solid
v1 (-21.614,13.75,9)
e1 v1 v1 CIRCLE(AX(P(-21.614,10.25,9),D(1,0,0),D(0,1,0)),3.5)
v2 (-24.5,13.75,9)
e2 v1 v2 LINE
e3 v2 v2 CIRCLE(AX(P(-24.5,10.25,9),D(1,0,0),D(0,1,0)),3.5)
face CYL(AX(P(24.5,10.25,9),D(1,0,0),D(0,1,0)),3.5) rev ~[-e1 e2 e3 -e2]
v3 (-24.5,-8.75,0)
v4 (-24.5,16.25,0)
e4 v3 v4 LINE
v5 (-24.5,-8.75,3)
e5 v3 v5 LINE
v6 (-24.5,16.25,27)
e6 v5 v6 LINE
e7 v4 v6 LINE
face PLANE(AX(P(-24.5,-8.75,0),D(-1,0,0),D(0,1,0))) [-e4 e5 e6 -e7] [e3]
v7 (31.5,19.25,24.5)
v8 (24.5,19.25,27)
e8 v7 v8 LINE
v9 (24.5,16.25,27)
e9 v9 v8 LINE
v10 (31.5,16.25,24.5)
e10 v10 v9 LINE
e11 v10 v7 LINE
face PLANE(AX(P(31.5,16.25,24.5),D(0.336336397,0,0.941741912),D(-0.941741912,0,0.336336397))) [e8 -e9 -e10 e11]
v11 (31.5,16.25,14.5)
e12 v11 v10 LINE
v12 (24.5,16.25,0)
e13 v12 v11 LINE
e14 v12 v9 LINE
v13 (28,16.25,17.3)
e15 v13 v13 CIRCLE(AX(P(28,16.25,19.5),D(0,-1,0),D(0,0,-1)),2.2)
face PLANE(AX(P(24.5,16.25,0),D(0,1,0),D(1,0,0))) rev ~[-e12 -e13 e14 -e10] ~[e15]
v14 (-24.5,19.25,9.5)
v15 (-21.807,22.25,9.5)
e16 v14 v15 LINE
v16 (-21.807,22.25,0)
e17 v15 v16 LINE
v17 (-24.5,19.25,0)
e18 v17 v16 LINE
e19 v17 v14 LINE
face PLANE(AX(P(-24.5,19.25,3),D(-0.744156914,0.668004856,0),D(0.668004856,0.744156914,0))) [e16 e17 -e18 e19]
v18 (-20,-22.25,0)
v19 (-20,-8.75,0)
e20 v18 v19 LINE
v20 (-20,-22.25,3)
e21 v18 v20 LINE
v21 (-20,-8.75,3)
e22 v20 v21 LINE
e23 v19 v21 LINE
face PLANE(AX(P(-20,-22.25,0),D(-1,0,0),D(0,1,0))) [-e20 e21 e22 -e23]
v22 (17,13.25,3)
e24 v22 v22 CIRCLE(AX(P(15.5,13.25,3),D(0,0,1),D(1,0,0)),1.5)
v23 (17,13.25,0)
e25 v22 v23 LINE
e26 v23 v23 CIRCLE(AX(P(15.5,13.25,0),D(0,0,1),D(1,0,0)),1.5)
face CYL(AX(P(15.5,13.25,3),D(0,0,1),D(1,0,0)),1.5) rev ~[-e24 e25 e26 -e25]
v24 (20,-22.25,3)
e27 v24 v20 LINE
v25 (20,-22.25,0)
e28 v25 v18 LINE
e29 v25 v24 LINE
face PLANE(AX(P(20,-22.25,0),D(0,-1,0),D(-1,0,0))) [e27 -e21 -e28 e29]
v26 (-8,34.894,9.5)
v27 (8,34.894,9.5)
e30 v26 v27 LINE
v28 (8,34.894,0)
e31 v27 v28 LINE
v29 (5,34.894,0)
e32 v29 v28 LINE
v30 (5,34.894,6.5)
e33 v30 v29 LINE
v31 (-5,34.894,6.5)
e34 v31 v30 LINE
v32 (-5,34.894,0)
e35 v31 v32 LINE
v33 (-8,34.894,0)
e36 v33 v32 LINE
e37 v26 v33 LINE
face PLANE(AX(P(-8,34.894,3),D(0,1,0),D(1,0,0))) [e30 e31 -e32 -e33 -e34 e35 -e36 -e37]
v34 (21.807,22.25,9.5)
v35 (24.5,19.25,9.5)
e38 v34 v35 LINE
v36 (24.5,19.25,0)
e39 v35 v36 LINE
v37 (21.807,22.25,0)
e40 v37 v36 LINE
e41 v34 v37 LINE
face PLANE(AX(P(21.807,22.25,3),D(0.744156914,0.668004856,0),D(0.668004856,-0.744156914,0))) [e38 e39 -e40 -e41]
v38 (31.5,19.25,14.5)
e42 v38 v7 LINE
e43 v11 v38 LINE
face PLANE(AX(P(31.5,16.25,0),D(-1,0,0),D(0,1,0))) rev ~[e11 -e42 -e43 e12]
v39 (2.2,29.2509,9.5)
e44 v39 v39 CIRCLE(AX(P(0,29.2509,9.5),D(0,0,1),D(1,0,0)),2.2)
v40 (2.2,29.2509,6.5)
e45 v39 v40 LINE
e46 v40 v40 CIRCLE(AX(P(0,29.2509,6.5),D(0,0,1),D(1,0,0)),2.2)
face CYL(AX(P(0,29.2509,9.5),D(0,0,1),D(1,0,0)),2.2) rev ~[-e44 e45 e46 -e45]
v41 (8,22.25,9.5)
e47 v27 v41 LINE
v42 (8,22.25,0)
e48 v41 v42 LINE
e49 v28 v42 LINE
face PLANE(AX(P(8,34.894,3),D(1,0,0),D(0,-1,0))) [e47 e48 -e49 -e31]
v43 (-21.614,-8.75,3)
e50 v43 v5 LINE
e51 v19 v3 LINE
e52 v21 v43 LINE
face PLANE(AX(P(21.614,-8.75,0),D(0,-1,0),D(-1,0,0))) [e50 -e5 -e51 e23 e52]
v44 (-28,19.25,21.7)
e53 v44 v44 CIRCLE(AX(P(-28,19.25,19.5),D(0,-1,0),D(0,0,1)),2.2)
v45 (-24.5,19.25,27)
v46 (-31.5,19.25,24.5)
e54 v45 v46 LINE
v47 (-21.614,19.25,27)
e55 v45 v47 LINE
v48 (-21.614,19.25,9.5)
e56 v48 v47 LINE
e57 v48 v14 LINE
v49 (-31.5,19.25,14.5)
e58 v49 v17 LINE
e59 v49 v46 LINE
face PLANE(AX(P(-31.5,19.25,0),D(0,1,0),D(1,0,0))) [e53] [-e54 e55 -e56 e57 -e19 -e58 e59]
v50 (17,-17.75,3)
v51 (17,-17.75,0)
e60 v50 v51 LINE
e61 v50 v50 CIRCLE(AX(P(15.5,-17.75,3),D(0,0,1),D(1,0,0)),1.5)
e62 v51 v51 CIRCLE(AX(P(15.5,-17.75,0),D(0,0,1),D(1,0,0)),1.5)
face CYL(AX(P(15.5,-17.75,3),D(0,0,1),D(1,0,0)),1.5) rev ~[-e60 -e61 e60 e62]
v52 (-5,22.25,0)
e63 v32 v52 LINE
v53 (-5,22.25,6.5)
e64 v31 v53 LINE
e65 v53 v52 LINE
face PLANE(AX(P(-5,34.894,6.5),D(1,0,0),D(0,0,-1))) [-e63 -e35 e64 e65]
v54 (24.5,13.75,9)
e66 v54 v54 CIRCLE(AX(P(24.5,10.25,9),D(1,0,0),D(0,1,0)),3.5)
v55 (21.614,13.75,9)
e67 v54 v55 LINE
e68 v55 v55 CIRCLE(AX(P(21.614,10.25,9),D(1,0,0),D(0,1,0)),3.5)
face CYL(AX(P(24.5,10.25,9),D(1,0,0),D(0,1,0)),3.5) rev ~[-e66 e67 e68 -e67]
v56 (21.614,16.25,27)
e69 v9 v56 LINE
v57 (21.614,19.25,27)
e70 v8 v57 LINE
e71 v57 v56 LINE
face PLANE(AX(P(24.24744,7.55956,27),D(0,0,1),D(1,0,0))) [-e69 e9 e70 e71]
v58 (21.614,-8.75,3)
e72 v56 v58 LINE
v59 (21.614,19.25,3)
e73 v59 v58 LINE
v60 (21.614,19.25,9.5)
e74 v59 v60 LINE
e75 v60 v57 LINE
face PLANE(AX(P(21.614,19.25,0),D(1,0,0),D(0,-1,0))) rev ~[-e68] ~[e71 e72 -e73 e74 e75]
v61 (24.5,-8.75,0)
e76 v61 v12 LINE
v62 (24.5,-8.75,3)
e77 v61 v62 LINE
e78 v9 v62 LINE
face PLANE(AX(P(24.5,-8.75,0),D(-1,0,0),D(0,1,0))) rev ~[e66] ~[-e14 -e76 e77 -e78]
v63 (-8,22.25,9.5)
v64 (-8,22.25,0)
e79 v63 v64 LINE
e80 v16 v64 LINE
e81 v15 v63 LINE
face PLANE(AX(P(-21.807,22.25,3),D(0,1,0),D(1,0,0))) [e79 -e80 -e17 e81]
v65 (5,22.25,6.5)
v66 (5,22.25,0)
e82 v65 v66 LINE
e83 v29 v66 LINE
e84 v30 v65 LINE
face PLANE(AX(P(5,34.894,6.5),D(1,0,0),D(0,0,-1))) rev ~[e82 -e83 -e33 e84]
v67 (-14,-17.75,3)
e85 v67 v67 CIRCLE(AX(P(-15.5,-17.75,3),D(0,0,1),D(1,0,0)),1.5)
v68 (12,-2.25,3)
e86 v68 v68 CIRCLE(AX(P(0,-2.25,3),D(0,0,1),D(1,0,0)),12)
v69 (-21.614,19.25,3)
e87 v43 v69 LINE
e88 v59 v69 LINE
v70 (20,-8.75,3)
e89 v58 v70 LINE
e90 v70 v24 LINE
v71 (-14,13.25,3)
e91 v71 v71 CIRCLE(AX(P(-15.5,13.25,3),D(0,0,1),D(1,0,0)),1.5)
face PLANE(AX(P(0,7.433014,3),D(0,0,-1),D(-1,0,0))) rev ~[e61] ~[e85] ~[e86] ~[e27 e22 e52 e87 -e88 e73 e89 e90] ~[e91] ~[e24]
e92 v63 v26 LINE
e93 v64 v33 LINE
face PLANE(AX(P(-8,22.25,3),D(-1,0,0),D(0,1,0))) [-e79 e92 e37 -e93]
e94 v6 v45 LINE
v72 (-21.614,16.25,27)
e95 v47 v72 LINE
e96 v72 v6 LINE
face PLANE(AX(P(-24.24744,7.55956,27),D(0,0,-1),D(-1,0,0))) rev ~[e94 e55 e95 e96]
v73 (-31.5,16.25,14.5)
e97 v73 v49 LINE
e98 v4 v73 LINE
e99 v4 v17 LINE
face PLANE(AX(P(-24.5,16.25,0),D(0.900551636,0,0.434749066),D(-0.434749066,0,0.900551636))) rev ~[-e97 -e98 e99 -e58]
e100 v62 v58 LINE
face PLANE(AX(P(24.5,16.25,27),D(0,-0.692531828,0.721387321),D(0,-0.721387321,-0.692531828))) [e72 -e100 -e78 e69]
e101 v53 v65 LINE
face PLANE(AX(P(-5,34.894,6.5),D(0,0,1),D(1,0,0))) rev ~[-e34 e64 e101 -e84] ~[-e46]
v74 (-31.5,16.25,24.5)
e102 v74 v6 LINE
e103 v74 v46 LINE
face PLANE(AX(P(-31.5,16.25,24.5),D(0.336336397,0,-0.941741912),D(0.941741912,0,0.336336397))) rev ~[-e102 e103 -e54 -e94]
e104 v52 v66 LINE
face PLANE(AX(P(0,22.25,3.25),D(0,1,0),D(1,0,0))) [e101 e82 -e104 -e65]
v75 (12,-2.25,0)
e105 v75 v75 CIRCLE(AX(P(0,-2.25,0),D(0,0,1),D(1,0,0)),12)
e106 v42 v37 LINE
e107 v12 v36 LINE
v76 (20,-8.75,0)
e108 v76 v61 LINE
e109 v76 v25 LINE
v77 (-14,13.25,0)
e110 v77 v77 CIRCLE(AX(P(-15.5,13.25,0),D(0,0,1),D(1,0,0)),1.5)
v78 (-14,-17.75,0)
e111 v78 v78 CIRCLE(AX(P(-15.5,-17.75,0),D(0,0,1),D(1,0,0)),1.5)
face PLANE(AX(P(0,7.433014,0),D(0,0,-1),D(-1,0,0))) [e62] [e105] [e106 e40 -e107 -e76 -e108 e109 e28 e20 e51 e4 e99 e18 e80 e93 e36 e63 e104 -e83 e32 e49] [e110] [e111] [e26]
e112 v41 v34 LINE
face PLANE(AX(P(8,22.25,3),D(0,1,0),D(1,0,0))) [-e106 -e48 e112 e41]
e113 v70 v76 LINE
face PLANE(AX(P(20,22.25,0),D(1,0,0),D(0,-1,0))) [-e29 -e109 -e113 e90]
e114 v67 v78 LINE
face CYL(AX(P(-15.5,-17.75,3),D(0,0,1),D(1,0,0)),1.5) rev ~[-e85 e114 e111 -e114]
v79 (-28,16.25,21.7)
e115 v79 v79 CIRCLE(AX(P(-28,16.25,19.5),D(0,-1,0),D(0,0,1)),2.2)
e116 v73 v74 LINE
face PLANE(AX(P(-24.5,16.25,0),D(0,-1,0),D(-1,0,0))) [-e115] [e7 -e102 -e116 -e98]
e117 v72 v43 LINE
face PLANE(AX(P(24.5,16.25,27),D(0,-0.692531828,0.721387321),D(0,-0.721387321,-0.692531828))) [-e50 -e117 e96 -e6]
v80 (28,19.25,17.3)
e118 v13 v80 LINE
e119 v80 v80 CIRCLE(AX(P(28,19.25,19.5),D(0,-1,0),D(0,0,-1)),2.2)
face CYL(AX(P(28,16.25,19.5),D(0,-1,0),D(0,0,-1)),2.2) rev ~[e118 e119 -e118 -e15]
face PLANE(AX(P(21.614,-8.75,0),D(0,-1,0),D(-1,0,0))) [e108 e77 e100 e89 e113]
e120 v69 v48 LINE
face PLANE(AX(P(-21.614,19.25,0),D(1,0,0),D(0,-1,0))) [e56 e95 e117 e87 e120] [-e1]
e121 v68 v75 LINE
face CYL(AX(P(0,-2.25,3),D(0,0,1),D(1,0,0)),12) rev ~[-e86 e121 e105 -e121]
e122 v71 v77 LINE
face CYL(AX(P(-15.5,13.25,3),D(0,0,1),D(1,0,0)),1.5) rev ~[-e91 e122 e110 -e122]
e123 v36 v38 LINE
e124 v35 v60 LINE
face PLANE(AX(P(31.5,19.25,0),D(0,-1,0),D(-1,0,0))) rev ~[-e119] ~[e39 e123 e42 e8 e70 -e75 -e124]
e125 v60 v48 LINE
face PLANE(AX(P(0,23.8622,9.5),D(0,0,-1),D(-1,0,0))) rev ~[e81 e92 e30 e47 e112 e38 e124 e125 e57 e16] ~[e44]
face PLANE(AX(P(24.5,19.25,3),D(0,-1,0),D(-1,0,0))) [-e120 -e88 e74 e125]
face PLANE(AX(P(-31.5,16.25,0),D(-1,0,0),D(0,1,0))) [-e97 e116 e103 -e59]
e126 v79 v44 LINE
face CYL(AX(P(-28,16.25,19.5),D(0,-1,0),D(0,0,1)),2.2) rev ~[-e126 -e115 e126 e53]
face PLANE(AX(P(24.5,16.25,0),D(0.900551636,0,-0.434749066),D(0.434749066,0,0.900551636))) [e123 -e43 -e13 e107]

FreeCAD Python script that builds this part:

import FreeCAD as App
import Part
import Sketcher

V = App.Vector
Q = App.Units.Quantity

doc = App.newDocument("Part")
params = doc.addObject("Spreadsheet::Sheet", "Params")
for row, (alias, value) in enumerate([
    ("sketch1_width", "12 mm"),
    ("sketch1_width2", "40 mm"),
    ("sketch1_height", "44.5 mm"),
    ("pad1_length", "3 mm"),
    ("sketch2_width", "7 mm"),
    ("sketch2_height", "28 mm"),
    ("sketch2_height2", "25 mm"),
    ("pad2_length", "27 mm"),
    ("sketch3_width", "7 mm"),
    ("sketch3_height", "3 mm"),
    ("sketch3_height2", "25 mm"),
    ("pad3_length", "27 mm"),
    ("sketch4_height", "28 mm"),
    ("pad4_length", "3 mm"),
    ("sketch5_width", "49 mm"),
    ("sketch5_width2", "16 mm"),
    ("pad5_length", "6.5 mm"),
    ("sketch6_diameter", "7 mm"),
    ("sketch6_width", "25 mm"),
    ("sketch6_height", "24 mm"),
    ("sketch7_diameter", "4.4 mm"),
    ("sketch7_width", "7 mm"),
    ("sketch7_height", "2.5 mm"),
    ("sketch7_height2", "14.5 mm"),
    ("sketch8_width", "10 mm"),
    ("sketch8_height", "6.5 mm"),
    ("pocket3_length", "12.644 mm"),
    ("sketch9_diameter", "24 mm"),
    ("sketch9_diameter2", "3 mm"),
    ("sketch10_diameter", "4.4 mm"),
], start=1):
    params.set(f"A{row}", alias)
    params.set(f"B{row}", "=" + value)
    params.setAlias(f"B{row}", alias)

body = doc.addObject("PartDesign::Body", "Body")

# Sketch on XY plane
sketch1 = doc.addObject("Sketcher::SketchObject", "Sketch")
body.addObject(sketch1)
sketch1.AttachmentSupport = (doc.XY_Plane, [""])
sketch1.MapMode = "FlatFace"
sketch1.addGeometry(Part.LineSegment(V(-8, 35, 0), V(-8, 22, 0)), False)
sketch1.addGeometry(Part.LineSegment(V(-8, 22, 0), V(-20, 22, 0)), False)
sketch1.addGeometry(Part.LineSegment(V(-20, 22, 0), V(-20, -22, 0)), False)
sketch1.addGeometry(Part.LineSegment(V(-20, -22, 0), V(20, -22, 0)), False)
sketch1.addGeometry(Part.LineSegment(V(20, -22, 0), V(20, 22, 0)), False)
sketch1.addGeometry(Part.LineSegment(V(20, 22, 0), V(8, 22, 0)), False)
sketch1.addGeometry(Part.LineSegment(V(8, 22, 0), V(8, 35, 0)), False)
sketch1.addGeometry(Part.LineSegment(V(8, 35, 0), V(-8, 35, 0)), False)
sketch1.addConstraint(Sketcher.Constraint("Coincident", 0, 2, 1, 1))
sketch1.addConstraint(Sketcher.Constraint("Coincident", 1, 2, 2, 1))
sketch1.addConstraint(Sketcher.Constraint("Coincident", 2, 2, 3, 1))
sketch1.addConstraint(Sketcher.Constraint("Coincident", 3, 2, 4, 1))
sketch1.addConstraint(Sketcher.Constraint("Coincident", 4, 2, 5, 1))
sketch1.addConstraint(Sketcher.Constraint("Coincident", 5, 2, 6, 1))
sketch1.addConstraint(Sketcher.Constraint("Coincident", 6, 2, 7, 1))
sketch1.addConstraint(Sketcher.Constraint("Coincident", 7, 2, 0, 1))
sketch1.addConstraint(Sketcher.Constraint("Vertical", 0))
sketch1.addConstraint(Sketcher.Constraint("Horizontal", 1))
sketch1.addConstraint(Sketcher.Constraint("Vertical", 2))
sketch1.addConstraint(Sketcher.Constraint("Horizontal", 3))
sketch1.addConstraint(Sketcher.Constraint("Vertical", 4))
sketch1.addConstraint(Sketcher.Constraint("Horizontal", 5))
sketch1.addConstraint(Sketcher.Constraint("Vertical", 6))
sketch1.addConstraint(Sketcher.Constraint("Horizontal", 7))
sketch1.addConstraint(Sketcher.Constraint("Symmetric", 1, 2, 3, 2, -1, 1))
sketch1.addConstraint(Sketcher.Constraint("Symmetric", 0, 2, 5, 2, -2))
sketch1.addConstraint(Sketcher.Constraint("DistanceX", 1, 2, 1, 1, Q("12 mm")))
sketch1.addConstraint(Sketcher.Constraint("DistanceX", 3, 1, 3, 2, Q("40 mm")))
sketch1.addConstraint(Sketcher.Constraint("DistanceY", 2, 2, 2, 1, Q("44.5 mm")))
sketch1.addConstraint(Sketcher.Constraint("DistanceY", 0, 2, 0, 1, Q("12.644 mm")))
sketch1.setExpression("Constraints[18]", "Params.sketch1_width")
sketch1.setExpression("Constraints[19]", "Params.sketch1_width2")
sketch1.setExpression("Constraints[20]", "Params.sketch1_height")
pad1 = doc.addObject("PartDesign::Pad", "Pad")
body.addObject(pad1)
pad1.Profile = sketch1
pad1.setExpression("Length", "Params.pad1_length")
body2 = doc.addObject("PartDesign::Body", "Body001")

# Sketch on XY plane
sketch2 = doc.addObject("Sketcher::SketchObject", "Sketch001")
body2.addObject(sketch2)
sketch2.AttachmentSupport = (doc.getObject("XY_Plane001"), [""])
sketch2.MapMode = "FlatFace"
sketch2.addGeometry(Part.LineSegment(V(-31.5, 19.2, 0), V(-21.6, 19.2, 0)), False)
sketch2.addGeometry(Part.LineSegment(V(-21.6, 19.2, 0), V(-21.6, -8.8, 0)), False)
sketch2.addGeometry(Part.LineSegment(V(-21.6, -8.8, 0), V(-24.5, -8.8, 0)), False)
sketch2.addGeometry(Part.LineSegment(V(-24.5, -8.8, 0), V(-24.5, 16.2, 0)), False)
sketch2.addGeometry(Part.LineSegment(V(-24.5, 16.2, 0), V(-31.5, 16.2, 0)), False)
sketch2.addGeometry(Part.LineSegment(V(-31.5, 16.2, 0), V(-31.5, 19.2, 0)), False)
sketch2.addConstraint(Sketcher.Constraint("Coincident", 0, 2, 1, 1))
sketch2.addConstraint(Sketcher.Constraint("Coincident", 1, 2, 2, 1))
sketch2.addConstraint(Sketcher.Constraint("Coincident", 2, 2, 3, 1))
sketch2.addConstraint(Sketcher.Constraint("Coincident", 3, 2, 4, 1))
sketch2.addConstraint(Sketcher.Constraint("Coincident", 4, 2, 5, 1))
sketch2.addConstraint(Sketcher.Constraint("Coincident", 5, 2, 0, 1))
sketch2.addConstraint(Sketcher.Constraint("Horizontal", 0))
sketch2.addConstraint(Sketcher.Constraint("Vertical", 1))
sketch2.addConstraint(Sketcher.Constraint("Horizontal", 2))
sketch2.addConstraint(Sketcher.Constraint("Vertical", 3))
sketch2.addConstraint(Sketcher.Constraint("Horizontal", 4))
sketch2.addConstraint(Sketcher.Constraint("Vertical", 5))
sketch2.addConstraint(Sketcher.Constraint("DistanceX", 4, 2, 4, 1, Q("7 mm")))
sketch2.addConstraint(Sketcher.Constraint("DistanceY", 1, 2, 1, 1, Q("28 mm")))
sketch2.addConstraint(Sketcher.Constraint("DistanceY", 3, 1, 3, 2, Q("25 mm")))
sketch2.addConstraint(Sketcher.Constraint("DistanceX", 2, 2, -1, 1, Q("24.5 mm")))
sketch2.addConstraint(Sketcher.Constraint("DistanceX", 0, 1, 0, 2, Q("9.886 mm")))
sketch2.addConstraint(Sketcher.Constraint("DistanceY", -1, 1, 0, 2, Q("19.25 mm")))
sketch2.setExpression("Constraints[12]", "Params.sketch2_width")
sketch2.setExpression("Constraints[13]", "Params.sketch2_height")
sketch2.setExpression("Constraints[14]", "Params.sketch2_height2")
pad2 = doc.addObject("PartDesign::Pad", "Pad001")
body2.addObject(pad2)
pad2.Profile = sketch2
pad2.setExpression("Length", "Params.pad2_length")
body3 = doc.addObject("PartDesign::Body", "Body002")

# Sketch on XY plane
sketch3 = doc.addObject("Sketcher::SketchObject", "Sketch002")
body3.addObject(sketch3)
sketch3.AttachmentSupport = (doc.getObject("XY_Plane002"), [""])
sketch3.MapMode = "FlatFace"
sketch3.addGeometry(Part.LineSegment(V(31.5, 19.2, 0), V(31.5, 16.2, 0)), False)
sketch3.addGeometry(Part.LineSegment(V(31.5, 16.2, 0), V(24.5, 16.2, 0)), False)
sketch3.addGeometry(Part.LineSegment(V(24.5, 16.2, 0), V(24.5, -8.8, 0)), False)
sketch3.addGeometry(Part.LineSegment(V(24.5, -8.8, 0), V(21.6, -8.8, 0)), False)
sketch3.addGeometry(Part.LineSegment(V(21.6, -8.8, 0), V(21.6, 19.2, 0)), False)
sketch3.addGeometry(Part.LineSegment(V(21.6, 19.2, 0), V(31.5, 19.2, 0)), False)
sketch3.addConstraint(Sketcher.Constraint("Coincident", 0, 2, 1, 1))
sketch3.addConstraint(Sketcher.Constraint("Coincident", 1, 2, 2, 1))
sketch3.addConstraint(Sketcher.Constraint("Coincident", 2, 2, 3, 1))
sketch3.addConstraint(Sketcher.Constraint("Coincident", 3, 2, 4, 1))
sketch3.addConstraint(Sketcher.Constraint("Coincident", 4, 2, 5, 1))
sketch3.addConstraint(Sketcher.Constraint("Coincident", 5, 2, 0, 1))
sketch3.addConstraint(Sketcher.Constraint("Vertical", 0))
sketch3.addConstraint(Sketcher.Constraint("Horizontal", 1))
sketch3.addConstraint(Sketcher.Constraint("Vertical", 2))
sketch3.addConstraint(Sketcher.Constraint("Horizontal", 3))
sketch3.addConstraint(Sketcher.Constraint("Vertical", 4))
sketch3.addConstraint(Sketcher.Constraint("Horizontal", 5))
sketch3.addConstraint(Sketcher.Constraint("DistanceX", 1, 2, 1, 1, Q("7 mm")))
sketch3.addConstraint(Sketcher.Constraint("DistanceY", 0, 2, 0, 1, Q("3 mm")))
sketch3.addConstraint(Sketcher.Constraint("DistanceY", 2, 2, 2, 1, Q("25 mm")))
sketch3.addConstraint(Sketcher.Constraint("DistanceX", -1, 1, 0, 2, Q("31.5 mm")))
sketch3.addConstraint(Sketcher.Constraint("DistanceX", 3, 2, 3, 1, Q("2.886 mm")))
sketch3.addConstraint(Sketcher.Constraint("DistanceY", -1, 1, 0, 2, Q("16.25 mm")))
sketch3.setExpression("Constraints[12]", "Params.sketch3_width")
sketch3.setExpression("Constraints[13]", "Params.sketch3_height")
sketch3.setExpression("Constraints[14]", "Params.sketch3_height2")
pad3 = doc.addObject("PartDesign::Pad", "Pad002")
body3.addObject(pad3)
pad3.Profile = sketch3
pad3.setExpression("Length", "Params.pad3_length")
body.AllowCompound = True
doc.recompute()

boolean = doc.addObject("PartDesign::Boolean", "Boolean")
body.addObject(boolean)
boolean.Type = "Fuse"
boolean.addObjects([body2])
doc.recompute()

boolean2 = doc.addObject("PartDesign::Boolean", "Boolean001")
body.addObject(boolean2)
boolean2.Type = "Fuse"
boolean2.addObjects([body3])

# Sketch on XY plane
sketch4 = doc.addObject("Sketcher::SketchObject", "Sketch003")
body.addObject(sketch4)
sketch4.AttachmentSupport = (doc.XY_Plane, [""])
sketch4.MapMode = "FlatFace"
sketch4.addGeometry(Part.LineSegment(V(21.6, -8.8, 0), V(-21.6, -8.8, 0)), False)
sketch4.addGeometry(Part.LineSegment(V(-21.6, -8.8, 0), V(-21.6, 19.2, 0)), False)
sketch4.addGeometry(Part.LineSegment(V(-21.6, 19.2, 0), V(-24.5, 19.2, 0)), False)
sketch4.addGeometry(Part.LineSegment(V(-24.5, 19.2, 0), V(-21.8, 22.2, 0)), False)
sketch4.addGeometry(Part.LineSegment(V(-21.8, 22.2, 0), V(21.8, 22.2, 0)), False)
sketch4.addGeometry(Part.LineSegment(V(21.8, 22.2, 0), V(24.5, 19.2, 0)), False)
sketch4.addGeometry(Part.LineSegment(V(24.5, 19.2, 0), V(21.6, 19.2, 0)), False)
sketch4.addGeometry(Part.LineSegment(V(21.6, 19.2, 0), V(21.6, -8.8, 0)), False)
sketch4.addConstraint(Sketcher.Constraint("Coincident", 0, 2, 1, 1))
sketch4.addConstraint(Sketcher.Constraint("Coincident", 1, 2, 2, 1))
sketch4.addConstraint(Sketcher.Constraint("Coincident", 2, 2, 3, 1))
sketch4.addConstraint(Sketcher.Constraint("Coincident", 3, 2, 4, 1))
sketch4.addConstraint(Sketcher.Constraint("Coincident", 4, 2, 5, 1))
sketch4.addConstraint(Sketcher.Constraint("Coincident", 5, 2, 6, 1))
sketch4.addConstraint(Sketcher.Constraint("Coincident", 6, 2, 7, 1))
sketch4.addConstraint(Sketcher.Constraint("Coincident", 7, 2, 0, 1))
sketch4.addConstraint(Sketcher.Constraint("Horizontal", 0))
sketch4.addConstraint(Sketcher.Constraint("Vertical", 1))
sketch4.addConstraint(Sketcher.Constraint("Horizontal", 2))
sketch4.addConstraint(Sketcher.Constraint("Horizontal", 4))
sketch4.addConstraint(Sketcher.Constraint("Horizontal", 6))
sketch4.addConstraint(Sketcher.Constraint("Vertical", 7))
sketch4.addConstraint(Sketcher.Constraint("Symmetric", 2, 2, 5, 2, -2))
sketch4.addConstraint(Sketcher.Constraint("Equal", 2, 6))
sketch4.addConstraint(Sketcher.Constraint("Equal", 3, 5))
sketch4.addConstraint(Sketcher.Constraint("DistanceY", 1, 1, 1, 2, Q("28 mm")))
sketch4.addConstraint(Sketcher.Constraint("DistanceY", 1, 2, 3, 2, Q("3 mm")))
sketch4.addConstraint(Sketcher.Constraint("DistanceX", 2, 2, 5, 2, Q("49 mm")))
sketch4.addConstraint(Sketcher.Constraint("DistanceX", 0, 2, 0, 1, Q("43.228 mm")))
sketch4.addConstraint(Sketcher.Constraint("DistanceX", 4, 1, 4, 2, Q("43.614 mm")))
sketch4.addConstraint(Sketcher.Constraint("DistanceY", 0, 2, -1, 1, Q("8.75 mm")))
sketch4.setExpression("Constraints[17]", "Params.sketch4_height")
pad4 = doc.addObject("PartDesign::Pad", "Pad003")
body.addObject(pad4)
pad4.Profile = sketch4
pad4.setExpression("Length", "Params.pad4_length")

# Sketch on XY plane
sketch5 = doc.addObject("Sketcher::SketchObject", "Sketch004")
body.addObject(sketch5)
sketch5.AttachmentSupport = (doc.XY_Plane, [""])
sketch5.MapMode = "FlatFace"
sketch5.AttachmentOffset = App.Placement(V(0, 0, 3), App.Rotation())
sketch5.addGeometry(Part.LineSegment(V(-21.8, 22.2, 0), V(-24.5, 19.2, 0)), False)
sketch5.addGeometry(Part.LineSegment(V(-24.5, 19.2, 0), V(24.5, 19.2, 0)), False)
sketch5.addGeometry(Part.LineSegment(V(24.5, 19.2, 0), V(21.8, 22.2, 0)), False)
sketch5.addGeometry(Part.LineSegment(V(21.8, 22.2, 0), V(8, 22.2, 0)), False)
sketch5.addGeometry(Part.LineSegment(V(8, 22.2, 0), V(8, 34.9, 0)), False)
sketch5.addGeometry(Part.LineSegment(V(8, 34.9, 0), V(-8, 34.9, 0)), False)
sketch5.addGeometry(Part.LineSegment(V(-8, 34.9, 0), V(-8, 22.2, 0)), False)
sketch5.addGeometry(Part.LineSegment(V(-8, 22.2, 0), V(-21.8, 22.2, 0)), False)
sketch5.addConstraint(Sketcher.Constraint("Coincident", 0, 2, 1, 1))
sketch5.addConstraint(Sketcher.Constraint("Coincident", 1, 2, 2, 1))
sketch5.addConstraint(Sketcher.Constraint("Coincident", 2, 2, 3, 1))
sketch5.addConstraint(Sketcher.Constraint("Coincident", 3, 2, 4, 1))
sketch5.addConstraint(Sketcher.Constraint("Coincident", 4, 2, 5, 1))
sketch5.addConstraint(Sketcher.Constraint("Coincident", 5, 2, 6, 1))
sketch5.addConstraint(Sketcher.Constraint("Coincident", 6, 2, 7, 1))
sketch5.addConstraint(Sketcher.Constraint("Coincident", 7, 2, 0, 1))
sketch5.addConstraint(Sketcher.Constraint("Horizontal", 1))
sketch5.addConstraint(Sketcher.Constraint("Horizontal", 3))
sketch5.addConstraint(Sketcher.Constraint("Vertical", 4))
sketch5.addConstraint(Sketcher.Constraint("Horizontal", 5))
sketch5.addConstraint(Sketcher.Constraint("Vertical", 6))
sketch5.addConstraint(Sketcher.Constraint("Horizontal", 7))
sketch5.addConstraint(Sketcher.Constraint("Symmetric", 3, 2, 6, 2, -2))
sketch5.addConstraint(Sketcher.Constraint("Equal", 3, 7))
sketch5.addConstraint(Sketcher.Constraint("Equal", 0, 2))
sketch5.addConstraint(Sketcher.Constraint("DistanceX", 1, 1, 1, 2, Q("49 mm")))
sketch5.addConstraint(Sketcher.Constraint("DistanceX", 5, 2, 5, 1, Q("16 mm")))
sketch5.addConstraint(Sketcher.Constraint("DistanceY", 1, 2, 2, 2, Q("3 mm")))
sketch5.addConstraint(Sketcher.Constraint("DistanceX", 3, 2, 3, 1, Q("13.807 mm")))
sketch5.addConstraint(Sketcher.Constraint("DistanceY", 4, 1, 4, 2, Q("12.644 mm")))
sketch5.addConstraint(Sketcher.Constraint("DistanceY", -1, 1, 0, 2, Q("19.25 mm")))
sketch5.setExpression("Constraints[17]", "Params.sketch5_width")
sketch5.setExpression("Constraints[18]", "Params.sketch5_width2")
pad5 = doc.addObject("PartDesign::Pad", "Pad004")
body.addObject(pad5)
pad5.Profile = sketch5
pad5.setExpression("Length", "Params.pad5_length")

# Sketch on YZ plane
sketch6 = doc.addObject("Sketcher::SketchObject", "Sketch005")
body.addObject(sketch6)
sketch6.AttachmentSupport = (doc.YZ_Plane, [""])
sketch6.MapMode = "FlatFace"
sketch6.AttachmentOffset = App.Placement(V(0, 0, 24.5), App.Rotation())
sketch6.addGeometry(Part.Circle(V(10.2, 9, 0), V(0, 0, 1), 3.5), False)
sketch6.addGeometry(Part.LineSegment(V(-8.8, 3, 0), V(16.2, 27, 0)), False)
sketch6.addGeometry(Part.LineSegment(V(16.2, 27, 0), V(-8.8, 27, 0)), False)
sketch6.addGeometry(Part.LineSegment(V(-8.8, 27, 0), V(-8.8, 3, 0)), False)
sketch6.addConstraint(Sketcher.Constraint("Coincident", 1, 2, 2, 1))
sketch6.addConstraint(Sketcher.Constraint("Coincident", 2, 2, 3, 1))
sketch6.addConstraint(Sketcher.Constraint("Coincident", 3, 2, 1, 1))
sketch6.addConstraint(Sketcher.Constraint("Horizontal", 2))
sketch6.addConstraint(Sketcher.Constraint("Vertical", 3))
sketch6.addConstraint(Sketcher.Constraint("Diameter", 0, Q("7 mm")))
sketch6.addConstraint(Sketcher.Constraint("DistanceX", 2, 2, 2, 1, Q("25 mm")))
sketch6.addConstraint(Sketcher.Constraint("DistanceY", 3, 2, 3, 1, Q("24 mm")))
sketch6.addConstraint(Sketcher.Constraint("DistanceY", -1, 1, 0, 3, Q("9 mm")))
sketch6.addConstraint(Sketcher.Constraint("DistanceY", -1, 1, 1, 2, Q("27 mm")))
sketch6.addConstraint(Sketcher.Constraint("DistanceX", 0, 3, 1, 2, Q("6 mm")))
sketch6.addConstraint(Sketcher.Constraint("DistanceX", -1, 1, 0, 3, Q("10.25 mm")))
sketch6.setExpression("Constraints[5]", "Params.sketch6_diameter")
sketch6.setExpression("Constraints[6]", "Params.sketch6_width")
sketch6.setExpression("Constraints[7]", "Params.sketch6_height")
pocket1 = doc.addObject("PartDesign::Pocket", "Pocket")
body.addObject(pocket1)
pocket1.Profile = sketch6
pocket1.Type = "ThroughAll"

# Sketch on XZ plane
sketch7 = doc.addObject("Sketcher::SketchObject", "Sketch006")
body.addObject(sketch7)
sketch7.AttachmentSupport = (doc.XZ_Plane, [""])
sketch7.MapMode = "FlatFace"
sketch7.AttachmentOffset = App.Placement(V(0, 0, -16.25), App.Rotation())
sketch7.addGeometry(Part.Circle(V(28, 19.5, 0), V(0, 0, 1), 2.2), False)
sketch7.addGeometry(Part.Circle(V(-28, 19.5, 0), V(0, 0, 1), 2.2), False)
sketch7.addGeometry(Part.LineSegment(V(31.5, 27, 0), V(24.5, 27, 0)), False)
sketch7.addGeometry(Part.LineSegment(V(24.5, 27, 0), V(31.5, 24.5, 0)), False)
sketch7.addGeometry(Part.LineSegment(V(31.5, 24.5, 0), V(31.5, 27, 0)), False)
sketch7.addGeometry(Part.LineSegment(V(31.5, 14.5, 0), V(24.5, 0, 0)), False)
sketch7.addGeometry(Part.LineSegment(V(24.5, 0, 0), V(31.5, 0, 0)), False)
sketch7.addGeometry(Part.LineSegment(V(31.5, 0, 0), V(31.5, 14.5, 0)), False)
sketch7.addGeometry(Part.LineSegment(V(-31.5, 0, 0), V(-24.5, 0, 0)), False)
sketch7.addGeometry(Part.LineSegment(V(-24.5, 0, 0), V(-31.5, 14.5, 0)), False)
sketch7.addGeometry(Part.LineSegment(V(-31.5, 14.5, 0), V(-31.5, 0, 0)), False)
sketch7.addGeometry(Part.LineSegment(V(-31.5, 24.5, 0), V(-24.5, 27, 0)), False)
sketch7.addGeometry(Part.LineSegment(V(-24.5, 27, 0), V(-31.5, 27, 0)), False)
sketch7.addGeometry(Part.LineSegment(V(-31.5, 27, 0), V(-31.5, 24.5, 0)), False)
sketch7.addConstraint(Sketcher.Constraint("Coincident", 2, 2, 3, 1))
sketch7.addConstraint(Sketcher.Constraint("Coincident", 3, 2, 4, 1))
sketch7.addConstraint(Sketcher.Constraint("Coincident", 4, 2, 2, 1))
sketch7.addConstraint(Sketcher.Constraint("Coincident", 5, 2, 6, 1))
sketch7.addConstraint(Sketcher.Constraint("Coincident", 6, 2, 7, 1))
sketch7.addConstraint(Sketcher.Constraint("Coincident", 7, 2, 5, 1))
sketch7.addConstraint(Sketcher.Constraint("Coincident", 8, 2, 9, 1))
sketch7.addConstraint(Sketcher.Constraint("Coincident", 9, 2, 10, 1))
sketch7.addConstraint(Sketcher.Constraint("Coincident", 10, 2, 8, 1))
sketch7.addConstraint(Sketcher.Constraint("Coincident", 11, 2, 12, 1))
sketch7.addConstraint(Sketcher.Constraint("Coincident", 12, 2, 13, 1))
sketch7.addConstraint(Sketcher.Constraint("Coincident", 13, 2, 11, 1))
sketch7.addConstraint(Sketcher.Constraint("Horizontal", 2))
sketch7.addConstraint(Sketcher.Constraint("Vertical", 4))
sketch7.addConstraint(Sketcher.Constraint("Horizontal", 6))
sketch7.addConstraint(Sketcher.Constraint("Vertical", 7))
sketch7.addConstraint(Sketcher.Constraint("Horizontal", 8))
sketch7.addConstraint(Sketcher.Constraint("Vertical", 10))
sketch7.addConstraint(Sketcher.Constraint("Horizontal", 12))
sketch7.addConstraint(Sketcher.Constraint("Vertical", 13))
sketch7.addConstraint(Sketcher.Constraint("Equal", 0, 1))
sketch7.addConstraint(Sketcher.Constraint("Symmetric", 5, 2, 8, 2, -1, 1))
sketch7.addConstraint(Sketcher.Constraint("Symmetric", 0, 3, 1, 3, -2))
sketch7.addConstraint(Sketcher.Constraint("Symmetric", 7, 2, 9, 2, -2))
sketch7.addConstraint(Sketcher.Constraint("Symmetric", 2, 2, 11, 2, -2))
sketch7.addConstraint(Sketcher.Constraint("Symmetric", 3, 2, 13, 2, -2))
sketch7.addConstraint(Sketcher.Constraint("PointOnObject", 5, 2, -1))
sketch7.addConstraint(Sketcher.Constraint("Vertical", 2, 2, 5, 2))
sketch7.addConstraint(Sketcher.Constraint("Vertical", 4, 2, 6, 2))
sketch7.addConstraint(Sketcher.Constraint("Diameter", 0, Q("4.4 mm")))
sketch7.addConstraint(Sketcher.Constraint("DistanceX", 2, 2, 2, 1, Q("7 mm")))
sketch7.addConstraint(Sketcher.Constraint("DistanceY", 4, 1, 4, 2, Q("2.5 mm")))
sketch7.addConstraint(Sketcher.Constraint("DistanceY", 7, 1, 7, 2, Q("14.5 mm")))
sketch7.addConstraint(Sketcher.Constraint("DistanceX", -1, 1, 0, 3, Q("28 mm")))
sketch7.addConstraint(Sketcher.Constraint("DistanceY", -1, 1, 2, 2, Q("27 mm")))
sketch7.addConstraint(Sketcher.Constraint("DistanceY", 0, 3, 3, 2, Q("5 mm")))
sketch7.addConstraint(Sketcher.Constraint("DistanceX", 8, 2, 5, 2, Q("49 mm")))
sketch7.setExpression("Constraints[29]", "Params.sketch7_diameter")
sketch7.setExpression("Constraints[30]", "Params.sketch7_width")
sketch7.setExpression("Constraints[31]", "Params.sketch7_height")
sketch7.setExpression("Constraints[32]", "Params.sketch7_height2")
pocket2 = doc.addObject("PartDesign::Pocket", "Pocket001")
body.addObject(pocket2)
pocket2.Profile = sketch7
pocket2.Type = "ThroughAll"

# Sketch on XZ plane
sketch8 = doc.addObject("Sketcher::SketchObject", "Sketch007")
body.addObject(sketch8)
sketch8.AttachmentSupport = (doc.XZ_Plane, [""])
sketch8.MapMode = "FlatFace"
sketch8.AttachmentOffset = App.Placement(V(0, 0, -34.894), App.Rotation())
sketch8.addGeometry(Part.LineSegment(V(-5, 0, 0), V(-5, 6, 0)), False)
sketch8.addGeometry(Part.LineSegment(V(-5, 6, 0), V(5, 6, 0)), False)
sketch8.addGeometry(Part.LineSegment(V(5, 6, 0), V(5, 0, 0)), False)
sketch8.addGeometry(Part.LineSegment(V(5, 0, 0), V(-5, 0, 0)), False)
sketch8.addConstraint(Sketcher.Constraint("Coincident", 0, 2, 1, 1))
sketch8.addConstraint(Sketcher.Constraint("Coincident", 1, 2, 2, 1))
sketch8.addConstraint(Sketcher.Constraint("Coincident", 2, 2, 3, 1))
sketch8.addConstraint(Sketcher.Constraint("Coincident", 3, 2, 0, 1))
sketch8.addConstraint(Sketcher.Constraint("Vertical", 0))
sketch8.addConstraint(Sketcher.Constraint("Horizontal", 1))
sketch8.addConstraint(Sketcher.Constraint("Vertical", 2))
sketch8.addConstraint(Sketcher.Constraint("Horizontal", 3))
sketch8.addConstraint(Sketcher.Constraint("Symmetric", 2, 2, 3, 2, -1, 1))
sketch8.addConstraint(Sketcher.Constraint("DistanceX", 1, 1, 1, 2, Q("10 mm")))
sketch8.addConstraint(Sketcher.Constraint("DistanceY", 0, 1, 0, 2, Q("6.5 mm")))
sketch8.setExpression("Constraints[9]", "Params.sketch8_width")
sketch8.setExpression("Constraints[10]", "Params.sketch8_height")
pocket3 = doc.addObject("PartDesign::Pocket", "Pocket002")
body.addObject(pocket3)
pocket3.Profile = sketch8
pocket3.setExpression("Length", "Params.pocket3_length")
pocket3.Reversed = True

# Sketch on XY plane
sketch9 = doc.addObject("Sketcher::SketchObject", "Sketch008")
body.addObject(sketch9)
sketch9.AttachmentSupport = (doc.XY_Plane, [""])
sketch9.MapMode = "FlatFace"
sketch9.AttachmentOffset = App.Placement(V(0, 0, 3), App.Rotation())
sketch9.addGeometry(Part.Circle(V(0, -2.2, 0), V(0, 0, 1), 12), False)
sketch9.addGeometry(Part.Circle(V(-15.5, 13.2, 0), V(0, 0, 1), 1.5), False)
sketch9.addGeometry(Part.Circle(V(15.5, 13.2, 0), V(0, 0, 1), 1.5), False)
sketch9.addGeometry(Part.Circle(V(15.5, -17.8, 0), V(0, 0, 1), 1.5), False)
sketch9.addGeometry(Part.Circle(V(-15.5, -17.8, 0), V(0, 0, 1), 1.5), False)
sketch9.addConstraint(Sketcher.Constraint("Equal", 1, 2))
sketch9.addConstraint(Sketcher.Constraint("Equal", 2, 3))
sketch9.addConstraint(Sketcher.Constraint("Equal", 3, 4))
sketch9.addConstraint(Sketcher.Constraint("Symmetric", 1, 3, 2, 3, -2))
sketch9.addConstraint(Sketcher.Constraint("Symmetric", 3, 3, 4, 3, -2))
sketch9.addConstraint(Sketcher.Constraint("PointOnObject", 0, 3, -2))
sketch9.addConstraint(Sketcher.Constraint("Vertical", 2, 3, 3, 3))
sketch9.addConstraint(Sketcher.Constraint("Diameter", 0, Q("24 mm")))
sketch9.addConstraint(Sketcher.Constraint("Diameter", 1, Q("3 mm")))
sketch9.addConstraint(Sketcher.Constraint("DistanceX", 1, 3, 2, 3, Q("31 mm")))
sketch9.addConstraint(Sketcher.Constraint("DistanceY", 3, 3, 2, 3, Q("31 mm")))
sketch9.addConstraint(Sketcher.Constraint("DistanceY", 0, 3, 1, 3, Q("15.5 mm")))
sketch9.addConstraint(Sketcher.Constraint("DistanceY", 0, 3, -1, 1, Q("2.25 mm")))
sketch9.setExpression("Constraints[7]", "Params.sketch9_diameter")
sketch9.setExpression("Constraints[8]", "Params.sketch9_diameter2")
pocket4 = doc.addObject("PartDesign::Pocket", "Pocket003")
body.addObject(pocket4)
pocket4.Profile = sketch9
pocket4.Type = "ThroughAll"

# Sketch on XY plane
sketch10 = doc.addObject("Sketcher::SketchObject", "Sketch009")
body.addObject(sketch10)
sketch10.AttachmentSupport = (doc.XY_Plane, [""])
sketch10.MapMode = "FlatFace"
sketch10.AttachmentOffset = App.Placement(V(0, 0, 9.5), App.Rotation())
sketch10.addGeometry(Part.Circle(V(0, 29.3, 0), V(0, 0, 1), 2.2), False)
sketch10.addConstraint(Sketcher.Constraint("PointOnObject", 0, 3, -2))
sketch10.addConstraint(Sketcher.Constraint("Diameter", 0, Q("4.4 mm")))
sketch10.addConstraint(Sketcher.Constraint("DistanceY", -1, 1, 0, 3, Q("29.2509 mm")))
sketch10.setExpression("Constraints[1]", "Params.sketch10_diameter")
pocket5 = doc.addObject("PartDesign::Pocket", "Pocket004")
body.addObject(pocket5)
pocket5.Profile = sketch10
pocket5.Type = "ThroughAll"

doc.recompute()
